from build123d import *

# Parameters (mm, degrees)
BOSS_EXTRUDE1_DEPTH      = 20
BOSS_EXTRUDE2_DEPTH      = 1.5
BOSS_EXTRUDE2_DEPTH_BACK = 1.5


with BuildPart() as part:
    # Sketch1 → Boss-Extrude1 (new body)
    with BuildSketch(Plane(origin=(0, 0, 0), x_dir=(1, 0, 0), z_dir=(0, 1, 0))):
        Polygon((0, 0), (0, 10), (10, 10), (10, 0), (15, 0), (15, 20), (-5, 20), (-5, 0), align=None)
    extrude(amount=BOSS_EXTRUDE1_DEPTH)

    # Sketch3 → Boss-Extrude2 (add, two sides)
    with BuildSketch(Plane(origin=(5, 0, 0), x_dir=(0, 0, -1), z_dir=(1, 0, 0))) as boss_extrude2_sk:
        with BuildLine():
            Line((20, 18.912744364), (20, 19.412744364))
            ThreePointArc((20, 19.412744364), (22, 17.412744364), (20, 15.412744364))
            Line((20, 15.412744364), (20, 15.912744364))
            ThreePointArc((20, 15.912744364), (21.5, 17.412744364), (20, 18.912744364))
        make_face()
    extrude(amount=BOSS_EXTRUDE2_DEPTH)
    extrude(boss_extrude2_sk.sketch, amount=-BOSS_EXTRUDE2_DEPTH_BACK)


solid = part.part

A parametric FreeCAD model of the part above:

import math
import FreeCAD as App
import Part
import Sketcher
from FreeCAD import Vector

doc = App.newDocument("Part")
params = doc.addObject("Spreadsheet::Sheet", "Params")
for row, (alias, value) in enumerate([
    ("sketch1_width", "10 mm"),
    ("sketch1_width2", "5 mm"),
    ("pad1_length", "20 mm"),
    ("sketch2_radius", "2 mm"),
    ("sketch2_radius2", "1.5 mm"),
    ("pad2_length", "1.5 mm"),
    ("pad2_length2", "1.5 mm"),
], start=1):
    params.set(f"A{row}", alias)
    params.set(f"B{row}", "=" + value)
    params.setAlias(f"B{row}", alias)

body = doc.addObject("PartDesign::Body", "Body")

# Sketch on XZ plane
sketch1 = body.newObject("Sketcher::SketchObject", "Sketch")
sketch1.AttachmentSupport = (doc.getObject("XZ_Plane"), [""])
sketch1.MapMode = "FlatFace"
sketch1.addGeometry([
    Part.LineSegment(Vector(0, 0, 0), Vector(0, -10, 0)),  # 0
    Part.LineSegment(Vector(0, -10, 0), Vector(10, -10, 0)),  # 1
    Part.LineSegment(Vector(10, -10, 0), Vector(10, 0, 0)),  # 2
    Part.LineSegment(Vector(10, 0, 0), Vector(15, 0, 0)),  # 3
    Part.LineSegment(Vector(15, 0, 0), Vector(15, -20, 0)),  # 4
    Part.LineSegment(Vector(15, -20, 0), Vector(-5, -20, 0)),  # 5
    Part.LineSegment(Vector(-5, -20, 0), Vector(-5, 0, 0)),  # 6
    Part.LineSegment(Vector(-5, 0, 0), Vector(0, 0, 0)),  # 7
], False)
sketch1.addConstraint([
    Sketcher.Constraint("Coincident", 0, 2, 1, 1),
    Sketcher.Constraint("Coincident", 1, 2, 2, 1),
    Sketcher.Constraint("Coincident", 2, 2, 3, 1),
    Sketcher.Constraint("Coincident", 3, 2, 4, 1),
    Sketcher.Constraint("Coincident", 4, 2, 5, 1),
    Sketcher.Constraint("Coincident", 5, 2, 6, 1),
    Sketcher.Constraint("Coincident", 6, 2, 7, 1),
    Sketcher.Constraint("Coincident", 7, 2, 0, 1),
    Sketcher.Constraint("Vertical", 0),
    Sketcher.Constraint("Horizontal", 1),
    Sketcher.Constraint("Vertical", 2),
    Sketcher.Constraint("Horizontal", 3),
    Sketcher.Constraint("Vertical", 4),
    Sketcher.Constraint("Horizontal", 5),
    Sketcher.Constraint("Vertical", 6),
    Sketcher.Constraint("Horizontal", 7),
    Sketcher.Constraint("Coincident", 7, 2, -1, 1),
    Sketcher.Constraint("PointOnObject", 2, 2, -1),
    Sketcher.Constraint("Equal", 3, 7),
    Sketcher.Constraint("Equal", 1, 0),
    Sketcher.Constraint("Equal", 5, 4),
    Sketcher.Constraint("DistanceX", 1, 1, 1, 2, 10.0),
    Sketcher.Constraint("DistanceX", 3, 1, 3, 2, 5.0),
])
sketch1.setExpression("Constraints[21]", "Params.sketch1_width")
sketch1.setExpression("Constraints[22]", "Params.sketch1_width2")
pad1 = body.newObject("PartDesign::Pad", "Pad")
pad1.Profile = sketch1
pad1.setExpression("Length", "Params.pad1_length")
pad1.Reversed = True

# Sketch on YZ plane
sketch2 = body.newObject("Sketcher::SketchObject", "Sketch001")
sketch2.AttachmentSupport = (doc.getObject("YZ_Plane"), [""])
sketch2.MapMode = "FlatFace"
sketch2.AttachmentOffset = App.Placement(Vector(0, 0, 5), App.Rotation())
sketch2.addGeometry([
    Part.LineSegment(Vector(19.412744, -20, 0), Vector(18.912744, -20, 0)),
    Part.ArcOfCircle(Part.Circle(Vector(17.412744, -20, 0), Vector(0, 0, 1), 1.5), math.radians(180), math.radians(360)),
    Part.LineSegment(Vector(15.912744, -20, 0), Vector(15.412744, -20, 0)),
    Part.ArcOfCircle(Part.Circle(Vector(17.412744, -20, 0), Vector(0, 0, 1), 2), math.radians(180), math.radians(360)),
], False)
sketch2.addConstraint([
    Sketcher.Constraint("Coincident", 0, 2, 1, 2),
    Sketcher.Constraint("Coincident", 1, 1, 2, 1),
    Sketcher.Constraint("Coincident", 2, 2, 3, 1),
    Sketcher.Constraint("Coincident", 3, 2, 0, 1),
    Sketcher.Constraint("Horizontal", 0),
    Sketcher.Constraint("Horizontal", 2),
    Sketcher.Constraint("Coincident", 3, 3, 1, 3),
    Sketcher.Constraint("Horizontal", 3, 3, 0, 2),
    Sketcher.Constraint("Horizontal", 0, 2, 1, 1),
    Sketcher.Constraint("Radius", 3, 2.0),
    Sketcher.Constraint("Radius", 1, 1.5),
    Sketcher.Constraint("DistanceY", 1, 3, -1, 1, 20.0),
    Sketcher.Constraint("DistanceX", -1, 1, 1, 3, 17.412744),
])
sketch2.setExpression("Constraints[9]", "Params.sketch2_radius")
sketch2.setExpression("Constraints[10]", "Params.sketch2_radius2")
pad2 = body.newObject("PartDesign::Pad", "Pad001")
pad2.Profile = sketch2
pad2.Type = "TwoLengths"
pad2.setExpression("Length", "Params.pad2_length")
pad2.setExpression("Length2", "Params.pad2_length2")

doc.recompute()
